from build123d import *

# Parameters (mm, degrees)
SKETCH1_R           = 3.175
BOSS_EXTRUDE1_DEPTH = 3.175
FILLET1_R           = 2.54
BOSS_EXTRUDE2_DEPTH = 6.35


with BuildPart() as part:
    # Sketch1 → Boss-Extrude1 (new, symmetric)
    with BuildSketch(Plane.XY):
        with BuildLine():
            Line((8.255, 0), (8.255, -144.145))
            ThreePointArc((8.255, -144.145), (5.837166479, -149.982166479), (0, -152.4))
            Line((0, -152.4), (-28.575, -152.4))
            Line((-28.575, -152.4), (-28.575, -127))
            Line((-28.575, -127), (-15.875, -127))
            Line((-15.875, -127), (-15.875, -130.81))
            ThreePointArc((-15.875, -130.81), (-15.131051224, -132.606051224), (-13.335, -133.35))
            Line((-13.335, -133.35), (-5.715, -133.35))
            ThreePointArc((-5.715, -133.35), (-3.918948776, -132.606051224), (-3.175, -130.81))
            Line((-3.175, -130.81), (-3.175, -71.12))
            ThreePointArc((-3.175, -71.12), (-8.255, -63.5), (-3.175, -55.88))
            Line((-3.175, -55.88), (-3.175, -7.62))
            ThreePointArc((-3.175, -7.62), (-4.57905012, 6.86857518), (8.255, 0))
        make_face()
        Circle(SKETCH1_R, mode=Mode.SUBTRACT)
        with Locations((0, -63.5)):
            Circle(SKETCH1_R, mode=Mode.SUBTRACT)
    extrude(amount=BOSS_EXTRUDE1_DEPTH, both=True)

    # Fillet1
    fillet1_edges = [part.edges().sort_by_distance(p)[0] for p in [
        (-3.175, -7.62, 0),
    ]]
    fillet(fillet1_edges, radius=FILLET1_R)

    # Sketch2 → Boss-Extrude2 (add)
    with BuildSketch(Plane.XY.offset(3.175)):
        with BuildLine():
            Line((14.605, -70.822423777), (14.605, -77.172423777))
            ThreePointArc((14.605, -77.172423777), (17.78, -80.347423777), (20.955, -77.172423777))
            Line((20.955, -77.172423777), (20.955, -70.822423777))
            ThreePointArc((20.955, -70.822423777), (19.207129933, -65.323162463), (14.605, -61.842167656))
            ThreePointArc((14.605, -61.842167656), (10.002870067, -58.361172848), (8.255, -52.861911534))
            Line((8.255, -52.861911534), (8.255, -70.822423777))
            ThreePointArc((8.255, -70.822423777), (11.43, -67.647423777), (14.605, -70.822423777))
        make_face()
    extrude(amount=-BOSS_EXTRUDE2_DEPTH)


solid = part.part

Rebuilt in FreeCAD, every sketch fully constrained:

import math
import FreeCAD as App
import Part
import Sketcher
from FreeCAD import Vector
Q = App.Units.Quantity


def edges_at(feature, points):
    """Names of the edges that pass closest to the given points."""
    edges = feature.Shape.Edges
    near = lambda p: min(range(len(edges)), key=lambda i: edges[i].distToShape(Part.Vertex(*p))[0])
    return sorted({f"Edge{near(p) + 1}" for p in points})

doc = App.newDocument("Part")
body = doc.addObject("PartDesign::Body", "Body")

# Sketch on XY plane
sketch1 = doc.addObject("Sketcher::SketchObject", "Sketch")
body.addObject(sketch1)
sketch1.AttachmentSupport = (doc.XY_Plane, [""])
sketch1.MapMode = "FlatFace"
sketch1.addGeometry([
    Part.LineSegment(Vector(8.3, -144.1, 0), Vector(8.3, 0, 0)),  # 0
    Part.ArcOfCircle(Part.Circle(Vector(0, 0, 0), Vector(0, 0, 1), 8.3), math.radians(0), math.radians(247)),  # 1
    Part.LineSegment(Vector(-3.2, -7.6, 0), Vector(-3.2, -55.9, 0)),  # 2
    Part.ArcOfCircle(Part.Circle(Vector(0, -63.5, 0), Vector(0, 0, 1), 8.3), math.radians(113), math.radians(247)),  # 3
    Part.LineSegment(Vector(-3.2, -71.1, 0), Vector(-3.2, -130.8, 0)),  # 4
    Part.ArcOfCircle(Part.Circle(Vector(-5.7, -130.8, 0), Vector(0, 0, 1), 2.5), math.radians(-90), math.radians(0)),  # 5
    Part.LineSegment(Vector(-5.7, -133.3, 0), Vector(-13.3, -133.3, 0)),  # 6
    Part.ArcOfCircle(Part.Circle(Vector(-13.3, -130.8, 0), Vector(0, 0, 1), 2.5), math.radians(-180), math.radians(-90)),  # 7
    Part.LineSegment(Vector(-15.9, -130.8, 0), Vector(-15.9, -127, 0)),  # 8
    Part.LineSegment(Vector(-15.9, -127, 0), Vector(-28.6, -127, 0)),  # 9
    Part.LineSegment(Vector(-28.6, -127, 0), Vector(-28.6, -152.4, 0)),  # 10
    Part.LineSegment(Vector(-28.6, -152.4, 0), Vector(0, -152.4, 0)),  # 11
    Part.ArcOfCircle(Part.Circle(Vector(0, -144.1, 0), Vector(0, 0, 1), 8.3), math.radians(-90), math.radians(0)),  # 12
    Part.Circle(Vector(0, -63.5, 0), Vector(0, 0, 1), 3.2),  # 13
    Part.Circle(Vector(0, 0, 0), Vector(0, 0, 1), 3.2),  # 14
], False)
sketch1.addConstraint([
    Sketcher.Constraint("Tangent", 0, 2, 1, 1),
    Sketcher.Constraint("Coincident", 1, 2, 2, 1),
    Sketcher.Constraint("Coincident", 2, 2, 3, 1),
    Sketcher.Constraint("Coincident", 3, 2, 4, 1),
    Sketcher.Constraint("Tangent", 4, 2, 5, 2),
    Sketcher.Constraint("Tangent", 5, 1, 6, 1),
    Sketcher.Constraint("Tangent", 6, 2, 7, 2),
    Sketcher.Constraint("Tangent", 7, 1, 8, 1),
    Sketcher.Constraint("Coincident", 8, 2, 9, 1),
    Sketcher.Constraint("Coincident", 9, 2, 10, 1),
    Sketcher.Constraint("Coincident", 10, 2, 11, 1),
    Sketcher.Constraint("Tangent", 11, 2, 12, 1),
    Sketcher.Constraint("Tangent", 12, 2, 0, 1),
    Sketcher.Constraint("Vertical", 0),
    Sketcher.Constraint("Vertical", 2),
    Sketcher.Constraint("Vertical", 4),
    Sketcher.Constraint("Horizontal", 6),
    Sketcher.Constraint("Vertical", 8),
    Sketcher.Constraint("Horizontal", 9),
    Sketcher.Constraint("Vertical", 10),
    Sketcher.Constraint("Horizontal", 11),
    Sketcher.Constraint("Coincident", 1, 3, -1, 1),
    Sketcher.Constraint("Coincident", 14, 3, -1, 1),
    Sketcher.Constraint("Coincident", 13, 3, 3, 3),
    Sketcher.Constraint("Equal", 1, 3),
    Sketcher.Constraint("Equal", 5, 7),
    Sketcher.Constraint("Equal", 3, 12),
    Sketcher.Constraint("Equal", 13, 14),
    Sketcher.Constraint("PointOnObject", 3, 3, -2),
    Sketcher.Constraint("Vertical", 2, 2, 3, 2),
    Sketcher.Constraint("Radius", 5, Q("0.1 in")),
    Sketcher.Constraint("Diameter", 13, Q("0.25 in")),
    Sketcher.Constraint("DistanceY", 10, 2, 10, 1, Q("1 in")),
    Sketcher.Constraint("DistanceX", 6, 2, 6, 1, Q("0.3 in")),
    Sketcher.Constraint("DistanceX", 9, 2, 9, 1, Q("0.5 in")),
    Sketcher.Constraint("DistanceY", 2, 2, 2, 1, Q("1.9 in")),
    Sketcher.Constraint("DistanceY", 8, 2, -1, 1, Q("5 in")),
    Sketcher.Constraint("Radius", 1, Q("0.325 in")),
    Sketcher.Constraint("DistanceY", 4, 2, 4, 1, Q("2.35 in")),
    Sketcher.Constraint("DistanceY", 8, 1, 8, 2, Q("0.15 in")),
])
pad1 = doc.addObject("PartDesign::Pad", "Pad")
body.addObject(pad1)
pad1.Profile = sketch1
pad1.Length = Q("0.25 in")
pad1.Midplane = True
doc.recompute()

fillet = doc.addObject("PartDesign::Fillet", "Fillet")
body.addObject(fillet)
fillet.Base = (pad1, edges_at(pad1, [(-3.175, -7.62, 0)]))
fillet.Radius = Q("0.1 in")

# Sketch on XY plane
sketch2 = doc.addObject("Sketcher::SketchObject", "Sketch001")
body.addObject(sketch2)
sketch2.AttachmentSupport = (doc.XY_Plane, [""])
sketch2.MapMode = "FlatFace"
sketch2.AttachmentOffset = App.Placement(Vector(0, 0, 0.125 * 25.4), App.Rotation())
sketch2.addGeometry([
    Part.LineSegment(Vector(14.6, -70.8, 0), Vector(14.6, -77.2, 0)),  # 0
    Part.ArcOfCircle(Part.Circle(Vector(17.8, -77.2, 0), Vector(0, 0, 1), 3.2), math.radians(180), math.radians(360)),  # 1
    Part.LineSegment(Vector(21, -77.2, 0), Vector(21, -70.8, 0)),  # 2
    Part.ArcOfCircle(Part.Circle(Vector(11.4, -70.8, 0), Vector(0, 0, 1), 9.5), math.radians(0), math.radians(71)),  # 3
    Part.ArcOfCircle(Part.Circle(Vector(17.8, -52.9, 0), Vector(0, 0, 1), 9.5), math.radians(-180), math.radians(-109)),  # 4
    Part.LineSegment(Vector(8.3, -52.9, 0), Vector(8.3, -70.8, 0)),  # 5
    Part.ArcOfCircle(Part.Circle(Vector(11.4, -70.8, 0), Vector(0, 0, 1), 3.2), math.radians(0), math.radians(180)),  # 6
], False)
sketch2.addConstraint([
    Sketcher.Constraint("Tangent", 0, 2, 1, 1),
    Sketcher.Constraint("Tangent", 1, 2, 2, 1),
    Sketcher.Constraint("Tangent", 2, 2, 3, 1),
    Sketcher.Constraint("Tangent", 3, 2, 4, 2),
    Sketcher.Constraint("Tangent", 4, 1, 5, 1),
    Sketcher.Constraint("Tangent", 5, 2, 6, 2),
    Sketcher.Constraint("Tangent", 6, 1, 0, 1),
    Sketcher.Constraint("Vertical", 0),
    Sketcher.Constraint("Vertical", 2),
    Sketcher.Constraint("Vertical", 5),
    Sketcher.Constraint("Coincident", 6, 3, 3, 3),
    Sketcher.Constraint("Equal", 3, 4),
    Sketcher.Constraint("Equal", 1, 6),
    Sketcher.Constraint("Radius", 1, Q("0.125 in")),
    Sketcher.Constraint("DistanceY", 0, 2, 0, 1, Q("0.25 in")),
    Sketcher.Constraint("DistanceX", -1, 1, 1, 3, Q("0.7 in")),
    Sketcher.Constraint("DistanceY", 4, 3, -1, 1, Q("52.861912 mm")),
])
pad2 = doc.addObject("PartDesign::Pad", "Pad001")
body.addObject(pad2)
pad2.Profile = sketch2
pad2.Length = Q("0.25 in")
pad2.Reversed = True

doc.recompute()
